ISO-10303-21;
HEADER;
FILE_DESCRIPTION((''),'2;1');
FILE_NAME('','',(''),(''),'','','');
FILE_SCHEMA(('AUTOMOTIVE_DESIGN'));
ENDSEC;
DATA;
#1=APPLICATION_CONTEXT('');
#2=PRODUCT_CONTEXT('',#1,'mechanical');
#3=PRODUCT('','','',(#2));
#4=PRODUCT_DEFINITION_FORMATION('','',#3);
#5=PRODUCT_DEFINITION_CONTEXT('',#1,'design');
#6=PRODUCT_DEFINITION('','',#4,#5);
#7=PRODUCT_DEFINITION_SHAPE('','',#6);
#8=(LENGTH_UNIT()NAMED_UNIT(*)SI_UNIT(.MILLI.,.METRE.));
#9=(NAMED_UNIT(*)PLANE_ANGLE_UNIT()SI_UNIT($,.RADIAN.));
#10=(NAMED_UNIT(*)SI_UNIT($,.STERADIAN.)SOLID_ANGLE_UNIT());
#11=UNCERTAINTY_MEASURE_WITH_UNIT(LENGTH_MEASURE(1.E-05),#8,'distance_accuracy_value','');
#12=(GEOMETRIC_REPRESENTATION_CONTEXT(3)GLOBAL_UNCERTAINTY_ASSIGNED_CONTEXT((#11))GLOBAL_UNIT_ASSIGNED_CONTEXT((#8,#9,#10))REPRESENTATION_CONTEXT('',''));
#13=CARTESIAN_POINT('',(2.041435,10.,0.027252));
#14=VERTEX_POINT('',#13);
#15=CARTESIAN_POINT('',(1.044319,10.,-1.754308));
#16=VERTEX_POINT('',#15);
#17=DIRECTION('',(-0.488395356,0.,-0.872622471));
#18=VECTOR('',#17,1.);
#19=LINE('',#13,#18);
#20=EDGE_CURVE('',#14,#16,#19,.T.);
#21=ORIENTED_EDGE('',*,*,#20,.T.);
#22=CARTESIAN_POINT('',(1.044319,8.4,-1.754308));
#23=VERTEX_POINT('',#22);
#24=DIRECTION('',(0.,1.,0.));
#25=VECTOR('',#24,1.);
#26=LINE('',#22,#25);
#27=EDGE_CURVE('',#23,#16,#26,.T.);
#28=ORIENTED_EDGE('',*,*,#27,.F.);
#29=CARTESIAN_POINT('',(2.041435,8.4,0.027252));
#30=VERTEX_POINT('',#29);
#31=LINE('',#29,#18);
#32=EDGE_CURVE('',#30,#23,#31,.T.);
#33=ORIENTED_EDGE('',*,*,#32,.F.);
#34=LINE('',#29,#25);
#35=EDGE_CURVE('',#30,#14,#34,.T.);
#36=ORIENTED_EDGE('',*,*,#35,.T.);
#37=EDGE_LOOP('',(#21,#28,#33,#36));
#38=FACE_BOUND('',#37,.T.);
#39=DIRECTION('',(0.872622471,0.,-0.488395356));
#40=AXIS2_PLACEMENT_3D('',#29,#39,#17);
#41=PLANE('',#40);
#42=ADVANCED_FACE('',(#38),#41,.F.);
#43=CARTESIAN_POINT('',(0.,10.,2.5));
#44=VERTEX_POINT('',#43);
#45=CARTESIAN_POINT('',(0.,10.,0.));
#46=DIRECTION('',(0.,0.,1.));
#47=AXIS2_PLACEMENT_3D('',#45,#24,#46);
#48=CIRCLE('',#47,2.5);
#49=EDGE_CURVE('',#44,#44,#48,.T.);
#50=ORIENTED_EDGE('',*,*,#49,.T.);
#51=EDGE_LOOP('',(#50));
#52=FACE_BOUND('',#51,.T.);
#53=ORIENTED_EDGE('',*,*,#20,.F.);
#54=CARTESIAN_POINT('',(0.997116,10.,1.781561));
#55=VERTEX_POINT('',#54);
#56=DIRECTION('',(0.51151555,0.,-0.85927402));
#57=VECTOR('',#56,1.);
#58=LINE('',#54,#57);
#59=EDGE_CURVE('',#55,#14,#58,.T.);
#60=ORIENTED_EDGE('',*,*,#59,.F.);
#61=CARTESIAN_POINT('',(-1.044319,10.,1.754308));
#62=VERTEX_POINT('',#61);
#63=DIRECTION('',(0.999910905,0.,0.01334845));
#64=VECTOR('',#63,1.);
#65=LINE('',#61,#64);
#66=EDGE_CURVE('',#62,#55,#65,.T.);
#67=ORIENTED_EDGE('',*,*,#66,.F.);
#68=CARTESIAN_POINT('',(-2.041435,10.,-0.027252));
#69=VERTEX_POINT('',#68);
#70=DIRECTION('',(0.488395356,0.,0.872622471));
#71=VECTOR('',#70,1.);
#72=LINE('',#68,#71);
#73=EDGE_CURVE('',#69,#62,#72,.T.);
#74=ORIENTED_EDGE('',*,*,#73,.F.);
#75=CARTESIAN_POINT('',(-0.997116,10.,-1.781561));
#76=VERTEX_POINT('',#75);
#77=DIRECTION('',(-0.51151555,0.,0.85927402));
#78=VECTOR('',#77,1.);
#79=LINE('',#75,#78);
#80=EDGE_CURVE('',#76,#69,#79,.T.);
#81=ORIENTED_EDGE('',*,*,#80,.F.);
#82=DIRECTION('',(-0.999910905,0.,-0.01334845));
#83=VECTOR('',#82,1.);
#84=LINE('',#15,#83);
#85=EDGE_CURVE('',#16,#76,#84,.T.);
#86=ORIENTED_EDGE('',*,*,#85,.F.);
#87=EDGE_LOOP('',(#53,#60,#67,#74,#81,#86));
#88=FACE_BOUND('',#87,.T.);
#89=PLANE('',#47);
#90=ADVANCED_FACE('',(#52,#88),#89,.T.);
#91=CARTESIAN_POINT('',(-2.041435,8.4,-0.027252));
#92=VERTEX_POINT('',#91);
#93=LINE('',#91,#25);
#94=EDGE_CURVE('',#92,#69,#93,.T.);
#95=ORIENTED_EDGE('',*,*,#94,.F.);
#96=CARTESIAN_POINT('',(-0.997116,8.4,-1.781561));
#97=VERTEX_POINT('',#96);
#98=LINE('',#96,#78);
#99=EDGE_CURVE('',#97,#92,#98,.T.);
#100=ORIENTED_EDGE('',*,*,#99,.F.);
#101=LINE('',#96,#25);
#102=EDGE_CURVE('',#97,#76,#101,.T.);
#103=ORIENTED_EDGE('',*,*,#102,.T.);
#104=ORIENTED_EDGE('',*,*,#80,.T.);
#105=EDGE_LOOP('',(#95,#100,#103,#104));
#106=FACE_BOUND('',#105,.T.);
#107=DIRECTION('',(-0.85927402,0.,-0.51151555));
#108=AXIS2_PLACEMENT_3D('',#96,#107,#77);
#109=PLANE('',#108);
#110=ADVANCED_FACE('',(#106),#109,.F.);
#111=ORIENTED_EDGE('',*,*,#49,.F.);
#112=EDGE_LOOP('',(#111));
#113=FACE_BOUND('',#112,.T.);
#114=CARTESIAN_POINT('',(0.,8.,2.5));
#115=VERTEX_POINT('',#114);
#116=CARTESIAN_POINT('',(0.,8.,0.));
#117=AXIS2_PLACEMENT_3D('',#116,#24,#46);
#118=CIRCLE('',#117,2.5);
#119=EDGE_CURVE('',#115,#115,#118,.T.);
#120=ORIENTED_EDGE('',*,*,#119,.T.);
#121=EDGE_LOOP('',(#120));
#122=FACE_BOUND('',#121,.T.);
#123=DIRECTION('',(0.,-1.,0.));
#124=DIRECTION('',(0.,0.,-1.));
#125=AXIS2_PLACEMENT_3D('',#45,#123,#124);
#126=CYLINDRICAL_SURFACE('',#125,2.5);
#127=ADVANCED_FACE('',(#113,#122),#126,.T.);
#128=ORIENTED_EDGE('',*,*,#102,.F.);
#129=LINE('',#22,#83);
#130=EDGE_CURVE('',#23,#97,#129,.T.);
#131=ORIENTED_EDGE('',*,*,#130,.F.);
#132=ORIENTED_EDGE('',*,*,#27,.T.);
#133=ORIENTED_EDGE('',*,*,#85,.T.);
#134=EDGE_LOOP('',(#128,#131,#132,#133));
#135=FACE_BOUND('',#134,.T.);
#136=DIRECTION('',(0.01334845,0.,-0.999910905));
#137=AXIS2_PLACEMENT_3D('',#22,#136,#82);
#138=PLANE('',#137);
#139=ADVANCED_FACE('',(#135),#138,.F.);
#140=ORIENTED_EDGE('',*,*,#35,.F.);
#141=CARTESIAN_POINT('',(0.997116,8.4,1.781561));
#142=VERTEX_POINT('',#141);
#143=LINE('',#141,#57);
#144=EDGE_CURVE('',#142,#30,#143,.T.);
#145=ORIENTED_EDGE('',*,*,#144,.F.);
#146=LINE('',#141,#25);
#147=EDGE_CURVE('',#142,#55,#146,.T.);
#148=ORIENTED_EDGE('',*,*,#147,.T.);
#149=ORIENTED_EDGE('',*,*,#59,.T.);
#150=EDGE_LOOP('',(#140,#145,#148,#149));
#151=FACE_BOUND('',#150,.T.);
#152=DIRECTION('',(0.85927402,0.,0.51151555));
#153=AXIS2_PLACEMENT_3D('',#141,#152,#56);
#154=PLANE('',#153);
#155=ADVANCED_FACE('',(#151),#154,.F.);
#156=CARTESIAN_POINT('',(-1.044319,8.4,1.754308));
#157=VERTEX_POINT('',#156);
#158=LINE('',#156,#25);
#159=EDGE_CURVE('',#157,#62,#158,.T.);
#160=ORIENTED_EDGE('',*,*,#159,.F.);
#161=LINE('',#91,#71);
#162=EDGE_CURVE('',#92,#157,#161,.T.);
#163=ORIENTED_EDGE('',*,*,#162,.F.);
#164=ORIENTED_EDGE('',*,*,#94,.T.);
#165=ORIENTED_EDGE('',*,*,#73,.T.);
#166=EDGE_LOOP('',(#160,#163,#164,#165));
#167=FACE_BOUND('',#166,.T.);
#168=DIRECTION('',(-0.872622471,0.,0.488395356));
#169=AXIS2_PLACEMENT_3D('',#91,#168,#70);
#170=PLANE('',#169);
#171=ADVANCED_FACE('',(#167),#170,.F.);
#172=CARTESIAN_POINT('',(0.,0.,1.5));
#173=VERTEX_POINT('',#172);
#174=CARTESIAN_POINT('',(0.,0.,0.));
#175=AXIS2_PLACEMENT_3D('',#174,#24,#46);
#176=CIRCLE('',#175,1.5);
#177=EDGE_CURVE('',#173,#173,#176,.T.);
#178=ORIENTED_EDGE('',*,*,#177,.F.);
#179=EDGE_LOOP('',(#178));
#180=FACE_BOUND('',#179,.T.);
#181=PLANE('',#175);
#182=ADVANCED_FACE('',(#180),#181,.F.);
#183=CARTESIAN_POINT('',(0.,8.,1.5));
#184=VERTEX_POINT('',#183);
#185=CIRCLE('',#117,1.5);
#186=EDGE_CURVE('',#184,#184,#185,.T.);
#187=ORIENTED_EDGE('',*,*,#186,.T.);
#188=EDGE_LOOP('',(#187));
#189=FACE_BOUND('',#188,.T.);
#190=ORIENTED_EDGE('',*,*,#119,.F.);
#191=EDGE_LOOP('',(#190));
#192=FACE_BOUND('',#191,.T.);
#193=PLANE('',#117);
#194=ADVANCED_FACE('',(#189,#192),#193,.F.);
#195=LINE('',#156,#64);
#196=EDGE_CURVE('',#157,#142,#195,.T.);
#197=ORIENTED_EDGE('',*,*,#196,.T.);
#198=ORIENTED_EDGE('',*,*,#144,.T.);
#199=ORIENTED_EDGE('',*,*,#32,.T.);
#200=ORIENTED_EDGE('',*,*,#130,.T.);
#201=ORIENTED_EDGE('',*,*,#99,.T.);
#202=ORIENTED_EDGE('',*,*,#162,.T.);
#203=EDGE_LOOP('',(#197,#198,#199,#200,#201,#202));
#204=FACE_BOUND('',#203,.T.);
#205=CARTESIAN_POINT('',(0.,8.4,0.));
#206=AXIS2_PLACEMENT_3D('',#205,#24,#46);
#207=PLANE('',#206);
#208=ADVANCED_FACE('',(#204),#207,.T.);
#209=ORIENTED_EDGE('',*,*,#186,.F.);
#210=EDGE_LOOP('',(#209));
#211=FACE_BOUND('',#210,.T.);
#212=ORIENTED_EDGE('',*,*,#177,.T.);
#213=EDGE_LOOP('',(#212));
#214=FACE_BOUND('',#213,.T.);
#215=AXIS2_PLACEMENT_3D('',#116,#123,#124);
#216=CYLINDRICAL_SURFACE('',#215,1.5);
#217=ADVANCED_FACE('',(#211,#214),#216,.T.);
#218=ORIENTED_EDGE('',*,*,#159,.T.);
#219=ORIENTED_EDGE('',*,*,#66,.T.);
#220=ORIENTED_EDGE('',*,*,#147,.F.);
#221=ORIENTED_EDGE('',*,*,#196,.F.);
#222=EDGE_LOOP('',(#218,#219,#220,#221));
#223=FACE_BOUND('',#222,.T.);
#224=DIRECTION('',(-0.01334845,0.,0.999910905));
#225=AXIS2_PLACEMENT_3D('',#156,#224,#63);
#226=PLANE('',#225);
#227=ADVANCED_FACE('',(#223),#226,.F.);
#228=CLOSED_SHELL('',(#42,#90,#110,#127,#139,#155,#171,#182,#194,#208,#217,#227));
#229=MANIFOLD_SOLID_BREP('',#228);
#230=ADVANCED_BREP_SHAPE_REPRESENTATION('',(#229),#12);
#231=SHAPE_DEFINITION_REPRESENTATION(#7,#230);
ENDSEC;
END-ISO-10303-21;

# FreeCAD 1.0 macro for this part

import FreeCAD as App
import Part
import Sketcher
from FreeCAD import Vector
Q = App.Units.Quantity

doc = App.newDocument("Part")
body = doc.addObject("PartDesign::Body", "Body")

# Sketch on XZ plane
sketch1 = body.newObject("Sketcher::SketchObject", "Sketch")
sketch1.AttachmentSupport = (doc.getObject("XZ_Plane"), [""])
sketch1.MapMode = "FlatFace"
sketch1.addGeometry(Part.Circle(Vector(0, 0, 0), Vector(0, 0, 1), 1.5), False)
sketch1.addConstraint([
    Sketcher.Constraint("Coincident", 0, 3, -1, 1),
    Sketcher.Constraint("Diameter", 0, Q("3 mm")),
])
pad1 = body.newObject("PartDesign::Pad", "Pad")
pad1.Profile = sketch1
pad1.Length = 8
pad1.Reversed = True

# Sketch on XZ plane
sketch2 = body.newObject("Sketcher::SketchObject", "Sketch001")
sketch2.AttachmentSupport = (doc.getObject("XZ_Plane"), [""])
sketch2.MapMode = "FlatFace"
sketch2.AttachmentOffset = App.Placement(Vector(0, 0, -8), App.Rotation())
sketch2.addGeometry(Part.Circle(Vector(0, 0, 0), Vector(0, 0, 1), 2.5), False)
sketch2.addConstraint([
    Sketcher.Constraint("Coincident", 0, 3, -1, 1),
    Sketcher.Constraint("Diameter", 0, Q("5 mm")),
])
pad2 = body.newObject("PartDesign::Pad", "Pad001")
pad2.Profile = sketch2
pad2.Length = 2
pad2.Reversed = True

# Sketch on XZ plane
sketch3 = body.newObject("Sketcher::SketchObject", "Sketch002")
sketch3.AttachmentSupport = (doc.getObject("XZ_Plane"), [""])
sketch3.MapMode = "FlatFace"
sketch3.AttachmentOffset = App.Placement(Vector(0, 0, -10), App.Rotation())
sketch3.addGeometry([
    Part.LineSegment(Vector(1, 1.8, 0), Vector(2, 0, 0)),  # 0
    Part.LineSegment(Vector(2, 0, 0), Vector(1, -1.8, 0)),  # 1
    Part.LineSegment(Vector(1, -1.8, 0), Vector(-1, -1.8, 0)),  # 2
    Part.LineSegment(Vector(-1, -1.8, 0), Vector(-2, 0, 0)),  # 3
    Part.LineSegment(Vector(-2, 0, 0), Vector(-1, 1.8, 0)),  # 4
    Part.LineSegment(Vector(-1, 1.8, 0), Vector(1, 1.8, 0)),  # 5
], False)
sketch3.addConstraint([
    Sketcher.Constraint("Coincident", 0, 2, 1, 1),
    Sketcher.Constraint("Coincident", 1, 2, 2, 1),
    Sketcher.Constraint("Coincident", 2, 2, 3, 1),
    Sketcher.Constraint("Coincident", 3, 2, 4, 1),
    Sketcher.Constraint("Coincident", 4, 2, 5, 1),
    Sketcher.Constraint("Coincident", 5, 2, 0, 1),
    Sketcher.Constraint("Symmetric", 0, 2, 3, 2, -1, 1),
    Sketcher.Constraint("Symmetric", 1, 2, 4, 2, -1, 1),
    Sketcher.Constraint("Symmetric", 2, 2, 5, 2, -1, 1),
    Sketcher.Constraint("Equal", 0, 1),
    Sketcher.Constraint("Equal", 1, 2),
    Sketcher.Constraint("DistanceX", -1, 1, 1, 2, Q("1.044319 mm")),
    Sketcher.Constraint("DistanceY", 1, 2, -1, 1, Q("1.754308 mm")),
    Sketcher.Constraint("DistanceY", 2, 2, -1, 1, Q("1.781561 mm")),
    Sketcher.Constraint("DistanceY", 1, 2, 0, 2, Q("1.781561 mm")),
])
pocket1 = body.newObject("PartDesign::Pocket", "Pocket")
pocket1.Profile = sketch3
pocket1.Length = 1.6
pocket1.Reversed = True

doc.recompute()
